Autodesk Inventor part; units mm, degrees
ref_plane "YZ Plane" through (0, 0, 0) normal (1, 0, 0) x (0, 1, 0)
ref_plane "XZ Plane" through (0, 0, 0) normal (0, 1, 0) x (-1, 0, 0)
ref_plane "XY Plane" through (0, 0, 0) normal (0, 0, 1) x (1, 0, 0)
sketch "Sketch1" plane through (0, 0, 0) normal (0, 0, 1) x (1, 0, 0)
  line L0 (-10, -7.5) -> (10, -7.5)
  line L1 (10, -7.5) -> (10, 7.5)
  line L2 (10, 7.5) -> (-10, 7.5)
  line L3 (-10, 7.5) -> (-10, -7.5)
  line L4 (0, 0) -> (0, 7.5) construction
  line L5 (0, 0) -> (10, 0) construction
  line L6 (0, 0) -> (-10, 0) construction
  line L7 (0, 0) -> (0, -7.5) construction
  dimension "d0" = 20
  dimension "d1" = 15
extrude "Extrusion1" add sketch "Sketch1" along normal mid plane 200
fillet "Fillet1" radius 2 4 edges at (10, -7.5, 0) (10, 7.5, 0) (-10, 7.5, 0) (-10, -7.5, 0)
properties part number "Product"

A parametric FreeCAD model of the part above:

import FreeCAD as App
import Part
import Sketcher

V = App.Vector
Q = App.Units.Quantity


def edges_at(feature, points):
    """Names of the edges that pass closest to the given points."""
    edges = feature.Shape.Edges
    near = lambda p: min(range(len(edges)), key=lambda i: edges[i].distToShape(Part.Vertex(*p))[0])
    return sorted({f"Edge{near(p) + 1}" for p in points})

doc = App.newDocument("Part")
body = doc.addObject("PartDesign::Body", "Body")

# Sketch on XY plane
sketch1 = body.newObject("Sketcher::SketchObject", "Sketch")
sketch1.AttachmentSupport = (doc.getObject("XY_Plane"), [""])
sketch1.MapMode = "FlatFace"
sketch1.addGeometry([
    Part.LineSegment(V(-10, 8, 0), V(-10, -8, 0)),
    Part.LineSegment(V(-10, -8, 0), V(10, -8, 0)),
    Part.LineSegment(V(10, -8, 0), V(10, 8, 0)),
    Part.LineSegment(V(10, 8, 0), V(-10, 8, 0)),
], False)
sketch1.addConstraint([
    Sketcher.Constraint("Coincident", 0, 2, 1, 1),
    Sketcher.Constraint("Coincident", 1, 2, 2, 1),
    Sketcher.Constraint("Coincident", 2, 2, 3, 1),
    Sketcher.Constraint("Coincident", 3, 2, 0, 1),
    Sketcher.Constraint("Vertical", 0),
    Sketcher.Constraint("Horizontal", 1),
    Sketcher.Constraint("Vertical", 2),
    Sketcher.Constraint("Horizontal", 3),
    Sketcher.Constraint("Symmetric", 0, 2, 2, 2, -1, 1),
    Sketcher.Constraint("DistanceX", 1, 1, 1, 2, Q("20 mm")),
    Sketcher.Constraint("DistanceY", 0, 2, 0, 1, Q("15 mm")),
])
pad1 = body.newObject("PartDesign::Pad", "Pad")
pad1.Profile = sketch1
pad1.Length = 200
pad1.Midplane = True
doc.recompute()

fillet = body.newObject("PartDesign::Fillet", "Fillet")
fillet.Base = (pad1, edges_at(pad1, [
    (10, -7.5, 0),
    (10, 7.5, 0),
    (-10, 7.5, 0),
    (-10, -7.5, 0),
]))
fillet.Radius = 2

doc.recompute()
